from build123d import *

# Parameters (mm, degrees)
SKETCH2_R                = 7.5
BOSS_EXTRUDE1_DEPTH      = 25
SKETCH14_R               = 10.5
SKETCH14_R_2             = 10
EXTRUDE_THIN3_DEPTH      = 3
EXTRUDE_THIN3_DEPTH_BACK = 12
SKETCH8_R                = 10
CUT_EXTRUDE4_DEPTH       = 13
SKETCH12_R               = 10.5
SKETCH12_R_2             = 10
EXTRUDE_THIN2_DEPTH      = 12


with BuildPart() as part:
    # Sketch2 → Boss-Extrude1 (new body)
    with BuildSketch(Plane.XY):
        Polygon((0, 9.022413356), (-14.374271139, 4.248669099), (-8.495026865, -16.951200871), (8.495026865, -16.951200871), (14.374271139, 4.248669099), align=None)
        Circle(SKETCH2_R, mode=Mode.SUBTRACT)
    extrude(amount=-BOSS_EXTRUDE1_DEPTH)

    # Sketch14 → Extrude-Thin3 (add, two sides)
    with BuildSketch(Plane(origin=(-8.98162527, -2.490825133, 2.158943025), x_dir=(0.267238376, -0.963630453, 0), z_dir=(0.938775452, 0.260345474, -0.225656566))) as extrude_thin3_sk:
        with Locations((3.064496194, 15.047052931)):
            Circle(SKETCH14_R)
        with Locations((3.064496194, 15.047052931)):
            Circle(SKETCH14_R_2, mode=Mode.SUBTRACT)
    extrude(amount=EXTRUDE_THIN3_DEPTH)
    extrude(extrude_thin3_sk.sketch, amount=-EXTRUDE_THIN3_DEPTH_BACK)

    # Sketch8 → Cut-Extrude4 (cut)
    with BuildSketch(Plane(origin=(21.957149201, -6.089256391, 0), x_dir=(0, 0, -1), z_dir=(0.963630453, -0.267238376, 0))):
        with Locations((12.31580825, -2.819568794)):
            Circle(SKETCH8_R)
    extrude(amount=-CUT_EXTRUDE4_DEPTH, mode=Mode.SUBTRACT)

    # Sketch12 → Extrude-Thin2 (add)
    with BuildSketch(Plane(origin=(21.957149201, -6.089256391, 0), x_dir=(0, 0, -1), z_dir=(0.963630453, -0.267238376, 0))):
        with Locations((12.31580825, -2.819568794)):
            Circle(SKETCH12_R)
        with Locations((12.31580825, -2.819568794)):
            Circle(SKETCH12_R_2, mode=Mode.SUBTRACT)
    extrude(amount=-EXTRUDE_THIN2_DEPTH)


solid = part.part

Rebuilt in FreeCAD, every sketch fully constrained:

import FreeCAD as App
import Part
import Sketcher
from FreeCAD import Vector
Q = App.Units.Quantity


def add_polygon(sketch, points):
    """Adds a closed chain of lines whose ends are joined by coincident constraints."""
    first, n = sketch.GeometryCount, len(points)
    for a, b in zip(points, points[1:] + points[:1]):
        sketch.addGeometry(Part.LineSegment(App.Vector(*a, 0), App.Vector(*b, 0)), False)
    for i in range(n):
        sketch.addConstraint(Sketcher.Constraint("Coincident", first + i, 2, first + (i + 1) % n, 1))

doc = App.newDocument("Part")
body = doc.addObject("PartDesign::Body", "Body")

# Sketch on XY plane
sketch1 = body.newObject("Sketcher::SketchObject", "Sketch")
sketch1.AttachmentSupport = (doc.getObject("XY_Plane"), [""])
sketch1.MapMode = "FlatFace"
add_polygon(sketch1, [(0, 9), (-14, 4), (-8, -17), (8, -17), (14, 4)])  # lines 0-4
sketch1.addGeometry(Part.Circle(Vector(0, 0, 0), Vector(0, 0, 1), 8), False)  # 5
sketch1.addConstraint(Sketcher.Constraint("Horizontal", 2))
sketch1.addConstraint(Sketcher.Constraint("Coincident", 5, 3, -1, 1))
sketch1.addConstraint(Sketcher.Constraint("Symmetric", 0, 2, 3, 2, -2))
sketch1.addConstraint(Sketcher.Constraint("PointOnObject", 4, 2, -2))
sketch1.addConstraint(Sketcher.Constraint("Equal", 1, 3))
sketch1.addConstraint(Sketcher.Constraint("Diameter", 5, 15.0))
sketch1.addConstraint(Sketcher.Constraint("Distance", 1, 22.0))
sketch1.addConstraint(Sketcher.Constraint("Angle", 1, Q("-74.5 deg")))
sketch1.addConstraint(Sketcher.Constraint("DistanceY", 1, 2, -1, 1, 16.951201))
sketch1.addConstraint(Sketcher.Constraint("DistanceX", 0, 2, 2, 2, 22.869298))
sketch1.addConstraint(Sketcher.Constraint("Distance", 0, 15.146231))
pad1 = body.newObject("PartDesign::Pad", "Pad")
pad1.Profile = sketch1
pad1.Length = 25
pad1.Reversed = True

# Sketch on an angled plane
sketch2 = body.newObject("Sketcher::SketchObject", "Sketch001")
sketch2.Placement = App.Placement(Vector(-8.981625, -2.490825, 2.158943), App.Rotation(Vector(0.267238376, -0.963630453, 0), Vector(-0.217449539, -0.060304094, -0.974206916), Vector(0.938775452, 0.260345474, -0.225656566), "ZXY"))
sketch2.addGeometry(Part.Circle(Vector(3, 15, 0), Vector(0, 0, 1), 10), False)
sketch2.addGeometry(Part.Circle(Vector(3, 15, 0), Vector(0, 0, 1), 10), False)
sketch2.addConstraint(Sketcher.Constraint("Coincident", 1, 3, 0, 3))
sketch2.addConstraint(Sketcher.Constraint("Diameter", 0, 21.0))
sketch2.addConstraint(Sketcher.Constraint("Diameter", 1, 20.0))
sketch2.addConstraint(Sketcher.Constraint("DistanceX", -1, 1, 0, 3, 3.064496))
sketch2.addConstraint(Sketcher.Constraint("DistanceY", -1, 1, 0, 3, 15.047053))
pad2 = body.newObject("PartDesign::Pad", "Pad001")
pad2.Profile = sketch2
pad2.Type = "TwoLengths"
pad2.Length = 3
pad2.Length2 = 12

# Sketch on an angled plane
sketch3 = body.newObject("Sketcher::SketchObject", "Sketch002")
sketch3.Placement = App.Placement(Vector(21.957149, -6.089256, 0), App.Rotation(Vector(0, 0, -1), Vector(0.267238376, 0.963630453, 0), Vector(0.963630453, -0.267238376, 0), "ZXY"))
sketch3.addGeometry(Part.Circle(Vector(12, -3, 0), Vector(0, 0, 1), 10), False)
sketch3.addConstraint(Sketcher.Constraint("Diameter", 0, 20.0))
sketch3.addConstraint(Sketcher.Constraint("DistanceX", -1, 1, 0, 3, 12.315808))
sketch3.addConstraint(Sketcher.Constraint("DistanceY", 0, 3, -1, 1, 2.819569))
pocket1 = body.newObject("PartDesign::Pocket", "Pocket")
pocket1.Profile = sketch3
pocket1.Length = 13

# Sketch on an angled plane
sketch4 = body.newObject("Sketcher::SketchObject", "Sketch003")
sketch4.Placement = App.Placement(Vector(21.957149, -6.089256, 0), App.Rotation(Vector(0, 0, -1), Vector(0.267238376, 0.963630453, 0), Vector(0.963630453, -0.267238376, 0), "ZXY"))
sketch4.addGeometry(Part.Circle(Vector(12, -3, 0), Vector(0, 0, 1), 10), False)
sketch4.addGeometry(Part.Circle(Vector(12, -3, 0), Vector(0, 0, 1), 10), False)
sketch4.addConstraint(Sketcher.Constraint("Coincident", 1, 3, 0, 3))
sketch4.addConstraint(Sketcher.Constraint("Diameter", 0, 21.0))
sketch4.addConstraint(Sketcher.Constraint("Diameter", 1, 20.0))
sketch4.addConstraint(Sketcher.Constraint("DistanceX", -1, 1, 0, 3, 12.315808))
sketch4.addConstraint(Sketcher.Constraint("DistanceY", 0, 3, -1, 1, 2.819569))
pad3 = body.newObject("PartDesign::Pad", "Pad002")
pad3.Profile = sketch4
pad3.Length = 12
pad3.Reversed = True

doc.recompute()
